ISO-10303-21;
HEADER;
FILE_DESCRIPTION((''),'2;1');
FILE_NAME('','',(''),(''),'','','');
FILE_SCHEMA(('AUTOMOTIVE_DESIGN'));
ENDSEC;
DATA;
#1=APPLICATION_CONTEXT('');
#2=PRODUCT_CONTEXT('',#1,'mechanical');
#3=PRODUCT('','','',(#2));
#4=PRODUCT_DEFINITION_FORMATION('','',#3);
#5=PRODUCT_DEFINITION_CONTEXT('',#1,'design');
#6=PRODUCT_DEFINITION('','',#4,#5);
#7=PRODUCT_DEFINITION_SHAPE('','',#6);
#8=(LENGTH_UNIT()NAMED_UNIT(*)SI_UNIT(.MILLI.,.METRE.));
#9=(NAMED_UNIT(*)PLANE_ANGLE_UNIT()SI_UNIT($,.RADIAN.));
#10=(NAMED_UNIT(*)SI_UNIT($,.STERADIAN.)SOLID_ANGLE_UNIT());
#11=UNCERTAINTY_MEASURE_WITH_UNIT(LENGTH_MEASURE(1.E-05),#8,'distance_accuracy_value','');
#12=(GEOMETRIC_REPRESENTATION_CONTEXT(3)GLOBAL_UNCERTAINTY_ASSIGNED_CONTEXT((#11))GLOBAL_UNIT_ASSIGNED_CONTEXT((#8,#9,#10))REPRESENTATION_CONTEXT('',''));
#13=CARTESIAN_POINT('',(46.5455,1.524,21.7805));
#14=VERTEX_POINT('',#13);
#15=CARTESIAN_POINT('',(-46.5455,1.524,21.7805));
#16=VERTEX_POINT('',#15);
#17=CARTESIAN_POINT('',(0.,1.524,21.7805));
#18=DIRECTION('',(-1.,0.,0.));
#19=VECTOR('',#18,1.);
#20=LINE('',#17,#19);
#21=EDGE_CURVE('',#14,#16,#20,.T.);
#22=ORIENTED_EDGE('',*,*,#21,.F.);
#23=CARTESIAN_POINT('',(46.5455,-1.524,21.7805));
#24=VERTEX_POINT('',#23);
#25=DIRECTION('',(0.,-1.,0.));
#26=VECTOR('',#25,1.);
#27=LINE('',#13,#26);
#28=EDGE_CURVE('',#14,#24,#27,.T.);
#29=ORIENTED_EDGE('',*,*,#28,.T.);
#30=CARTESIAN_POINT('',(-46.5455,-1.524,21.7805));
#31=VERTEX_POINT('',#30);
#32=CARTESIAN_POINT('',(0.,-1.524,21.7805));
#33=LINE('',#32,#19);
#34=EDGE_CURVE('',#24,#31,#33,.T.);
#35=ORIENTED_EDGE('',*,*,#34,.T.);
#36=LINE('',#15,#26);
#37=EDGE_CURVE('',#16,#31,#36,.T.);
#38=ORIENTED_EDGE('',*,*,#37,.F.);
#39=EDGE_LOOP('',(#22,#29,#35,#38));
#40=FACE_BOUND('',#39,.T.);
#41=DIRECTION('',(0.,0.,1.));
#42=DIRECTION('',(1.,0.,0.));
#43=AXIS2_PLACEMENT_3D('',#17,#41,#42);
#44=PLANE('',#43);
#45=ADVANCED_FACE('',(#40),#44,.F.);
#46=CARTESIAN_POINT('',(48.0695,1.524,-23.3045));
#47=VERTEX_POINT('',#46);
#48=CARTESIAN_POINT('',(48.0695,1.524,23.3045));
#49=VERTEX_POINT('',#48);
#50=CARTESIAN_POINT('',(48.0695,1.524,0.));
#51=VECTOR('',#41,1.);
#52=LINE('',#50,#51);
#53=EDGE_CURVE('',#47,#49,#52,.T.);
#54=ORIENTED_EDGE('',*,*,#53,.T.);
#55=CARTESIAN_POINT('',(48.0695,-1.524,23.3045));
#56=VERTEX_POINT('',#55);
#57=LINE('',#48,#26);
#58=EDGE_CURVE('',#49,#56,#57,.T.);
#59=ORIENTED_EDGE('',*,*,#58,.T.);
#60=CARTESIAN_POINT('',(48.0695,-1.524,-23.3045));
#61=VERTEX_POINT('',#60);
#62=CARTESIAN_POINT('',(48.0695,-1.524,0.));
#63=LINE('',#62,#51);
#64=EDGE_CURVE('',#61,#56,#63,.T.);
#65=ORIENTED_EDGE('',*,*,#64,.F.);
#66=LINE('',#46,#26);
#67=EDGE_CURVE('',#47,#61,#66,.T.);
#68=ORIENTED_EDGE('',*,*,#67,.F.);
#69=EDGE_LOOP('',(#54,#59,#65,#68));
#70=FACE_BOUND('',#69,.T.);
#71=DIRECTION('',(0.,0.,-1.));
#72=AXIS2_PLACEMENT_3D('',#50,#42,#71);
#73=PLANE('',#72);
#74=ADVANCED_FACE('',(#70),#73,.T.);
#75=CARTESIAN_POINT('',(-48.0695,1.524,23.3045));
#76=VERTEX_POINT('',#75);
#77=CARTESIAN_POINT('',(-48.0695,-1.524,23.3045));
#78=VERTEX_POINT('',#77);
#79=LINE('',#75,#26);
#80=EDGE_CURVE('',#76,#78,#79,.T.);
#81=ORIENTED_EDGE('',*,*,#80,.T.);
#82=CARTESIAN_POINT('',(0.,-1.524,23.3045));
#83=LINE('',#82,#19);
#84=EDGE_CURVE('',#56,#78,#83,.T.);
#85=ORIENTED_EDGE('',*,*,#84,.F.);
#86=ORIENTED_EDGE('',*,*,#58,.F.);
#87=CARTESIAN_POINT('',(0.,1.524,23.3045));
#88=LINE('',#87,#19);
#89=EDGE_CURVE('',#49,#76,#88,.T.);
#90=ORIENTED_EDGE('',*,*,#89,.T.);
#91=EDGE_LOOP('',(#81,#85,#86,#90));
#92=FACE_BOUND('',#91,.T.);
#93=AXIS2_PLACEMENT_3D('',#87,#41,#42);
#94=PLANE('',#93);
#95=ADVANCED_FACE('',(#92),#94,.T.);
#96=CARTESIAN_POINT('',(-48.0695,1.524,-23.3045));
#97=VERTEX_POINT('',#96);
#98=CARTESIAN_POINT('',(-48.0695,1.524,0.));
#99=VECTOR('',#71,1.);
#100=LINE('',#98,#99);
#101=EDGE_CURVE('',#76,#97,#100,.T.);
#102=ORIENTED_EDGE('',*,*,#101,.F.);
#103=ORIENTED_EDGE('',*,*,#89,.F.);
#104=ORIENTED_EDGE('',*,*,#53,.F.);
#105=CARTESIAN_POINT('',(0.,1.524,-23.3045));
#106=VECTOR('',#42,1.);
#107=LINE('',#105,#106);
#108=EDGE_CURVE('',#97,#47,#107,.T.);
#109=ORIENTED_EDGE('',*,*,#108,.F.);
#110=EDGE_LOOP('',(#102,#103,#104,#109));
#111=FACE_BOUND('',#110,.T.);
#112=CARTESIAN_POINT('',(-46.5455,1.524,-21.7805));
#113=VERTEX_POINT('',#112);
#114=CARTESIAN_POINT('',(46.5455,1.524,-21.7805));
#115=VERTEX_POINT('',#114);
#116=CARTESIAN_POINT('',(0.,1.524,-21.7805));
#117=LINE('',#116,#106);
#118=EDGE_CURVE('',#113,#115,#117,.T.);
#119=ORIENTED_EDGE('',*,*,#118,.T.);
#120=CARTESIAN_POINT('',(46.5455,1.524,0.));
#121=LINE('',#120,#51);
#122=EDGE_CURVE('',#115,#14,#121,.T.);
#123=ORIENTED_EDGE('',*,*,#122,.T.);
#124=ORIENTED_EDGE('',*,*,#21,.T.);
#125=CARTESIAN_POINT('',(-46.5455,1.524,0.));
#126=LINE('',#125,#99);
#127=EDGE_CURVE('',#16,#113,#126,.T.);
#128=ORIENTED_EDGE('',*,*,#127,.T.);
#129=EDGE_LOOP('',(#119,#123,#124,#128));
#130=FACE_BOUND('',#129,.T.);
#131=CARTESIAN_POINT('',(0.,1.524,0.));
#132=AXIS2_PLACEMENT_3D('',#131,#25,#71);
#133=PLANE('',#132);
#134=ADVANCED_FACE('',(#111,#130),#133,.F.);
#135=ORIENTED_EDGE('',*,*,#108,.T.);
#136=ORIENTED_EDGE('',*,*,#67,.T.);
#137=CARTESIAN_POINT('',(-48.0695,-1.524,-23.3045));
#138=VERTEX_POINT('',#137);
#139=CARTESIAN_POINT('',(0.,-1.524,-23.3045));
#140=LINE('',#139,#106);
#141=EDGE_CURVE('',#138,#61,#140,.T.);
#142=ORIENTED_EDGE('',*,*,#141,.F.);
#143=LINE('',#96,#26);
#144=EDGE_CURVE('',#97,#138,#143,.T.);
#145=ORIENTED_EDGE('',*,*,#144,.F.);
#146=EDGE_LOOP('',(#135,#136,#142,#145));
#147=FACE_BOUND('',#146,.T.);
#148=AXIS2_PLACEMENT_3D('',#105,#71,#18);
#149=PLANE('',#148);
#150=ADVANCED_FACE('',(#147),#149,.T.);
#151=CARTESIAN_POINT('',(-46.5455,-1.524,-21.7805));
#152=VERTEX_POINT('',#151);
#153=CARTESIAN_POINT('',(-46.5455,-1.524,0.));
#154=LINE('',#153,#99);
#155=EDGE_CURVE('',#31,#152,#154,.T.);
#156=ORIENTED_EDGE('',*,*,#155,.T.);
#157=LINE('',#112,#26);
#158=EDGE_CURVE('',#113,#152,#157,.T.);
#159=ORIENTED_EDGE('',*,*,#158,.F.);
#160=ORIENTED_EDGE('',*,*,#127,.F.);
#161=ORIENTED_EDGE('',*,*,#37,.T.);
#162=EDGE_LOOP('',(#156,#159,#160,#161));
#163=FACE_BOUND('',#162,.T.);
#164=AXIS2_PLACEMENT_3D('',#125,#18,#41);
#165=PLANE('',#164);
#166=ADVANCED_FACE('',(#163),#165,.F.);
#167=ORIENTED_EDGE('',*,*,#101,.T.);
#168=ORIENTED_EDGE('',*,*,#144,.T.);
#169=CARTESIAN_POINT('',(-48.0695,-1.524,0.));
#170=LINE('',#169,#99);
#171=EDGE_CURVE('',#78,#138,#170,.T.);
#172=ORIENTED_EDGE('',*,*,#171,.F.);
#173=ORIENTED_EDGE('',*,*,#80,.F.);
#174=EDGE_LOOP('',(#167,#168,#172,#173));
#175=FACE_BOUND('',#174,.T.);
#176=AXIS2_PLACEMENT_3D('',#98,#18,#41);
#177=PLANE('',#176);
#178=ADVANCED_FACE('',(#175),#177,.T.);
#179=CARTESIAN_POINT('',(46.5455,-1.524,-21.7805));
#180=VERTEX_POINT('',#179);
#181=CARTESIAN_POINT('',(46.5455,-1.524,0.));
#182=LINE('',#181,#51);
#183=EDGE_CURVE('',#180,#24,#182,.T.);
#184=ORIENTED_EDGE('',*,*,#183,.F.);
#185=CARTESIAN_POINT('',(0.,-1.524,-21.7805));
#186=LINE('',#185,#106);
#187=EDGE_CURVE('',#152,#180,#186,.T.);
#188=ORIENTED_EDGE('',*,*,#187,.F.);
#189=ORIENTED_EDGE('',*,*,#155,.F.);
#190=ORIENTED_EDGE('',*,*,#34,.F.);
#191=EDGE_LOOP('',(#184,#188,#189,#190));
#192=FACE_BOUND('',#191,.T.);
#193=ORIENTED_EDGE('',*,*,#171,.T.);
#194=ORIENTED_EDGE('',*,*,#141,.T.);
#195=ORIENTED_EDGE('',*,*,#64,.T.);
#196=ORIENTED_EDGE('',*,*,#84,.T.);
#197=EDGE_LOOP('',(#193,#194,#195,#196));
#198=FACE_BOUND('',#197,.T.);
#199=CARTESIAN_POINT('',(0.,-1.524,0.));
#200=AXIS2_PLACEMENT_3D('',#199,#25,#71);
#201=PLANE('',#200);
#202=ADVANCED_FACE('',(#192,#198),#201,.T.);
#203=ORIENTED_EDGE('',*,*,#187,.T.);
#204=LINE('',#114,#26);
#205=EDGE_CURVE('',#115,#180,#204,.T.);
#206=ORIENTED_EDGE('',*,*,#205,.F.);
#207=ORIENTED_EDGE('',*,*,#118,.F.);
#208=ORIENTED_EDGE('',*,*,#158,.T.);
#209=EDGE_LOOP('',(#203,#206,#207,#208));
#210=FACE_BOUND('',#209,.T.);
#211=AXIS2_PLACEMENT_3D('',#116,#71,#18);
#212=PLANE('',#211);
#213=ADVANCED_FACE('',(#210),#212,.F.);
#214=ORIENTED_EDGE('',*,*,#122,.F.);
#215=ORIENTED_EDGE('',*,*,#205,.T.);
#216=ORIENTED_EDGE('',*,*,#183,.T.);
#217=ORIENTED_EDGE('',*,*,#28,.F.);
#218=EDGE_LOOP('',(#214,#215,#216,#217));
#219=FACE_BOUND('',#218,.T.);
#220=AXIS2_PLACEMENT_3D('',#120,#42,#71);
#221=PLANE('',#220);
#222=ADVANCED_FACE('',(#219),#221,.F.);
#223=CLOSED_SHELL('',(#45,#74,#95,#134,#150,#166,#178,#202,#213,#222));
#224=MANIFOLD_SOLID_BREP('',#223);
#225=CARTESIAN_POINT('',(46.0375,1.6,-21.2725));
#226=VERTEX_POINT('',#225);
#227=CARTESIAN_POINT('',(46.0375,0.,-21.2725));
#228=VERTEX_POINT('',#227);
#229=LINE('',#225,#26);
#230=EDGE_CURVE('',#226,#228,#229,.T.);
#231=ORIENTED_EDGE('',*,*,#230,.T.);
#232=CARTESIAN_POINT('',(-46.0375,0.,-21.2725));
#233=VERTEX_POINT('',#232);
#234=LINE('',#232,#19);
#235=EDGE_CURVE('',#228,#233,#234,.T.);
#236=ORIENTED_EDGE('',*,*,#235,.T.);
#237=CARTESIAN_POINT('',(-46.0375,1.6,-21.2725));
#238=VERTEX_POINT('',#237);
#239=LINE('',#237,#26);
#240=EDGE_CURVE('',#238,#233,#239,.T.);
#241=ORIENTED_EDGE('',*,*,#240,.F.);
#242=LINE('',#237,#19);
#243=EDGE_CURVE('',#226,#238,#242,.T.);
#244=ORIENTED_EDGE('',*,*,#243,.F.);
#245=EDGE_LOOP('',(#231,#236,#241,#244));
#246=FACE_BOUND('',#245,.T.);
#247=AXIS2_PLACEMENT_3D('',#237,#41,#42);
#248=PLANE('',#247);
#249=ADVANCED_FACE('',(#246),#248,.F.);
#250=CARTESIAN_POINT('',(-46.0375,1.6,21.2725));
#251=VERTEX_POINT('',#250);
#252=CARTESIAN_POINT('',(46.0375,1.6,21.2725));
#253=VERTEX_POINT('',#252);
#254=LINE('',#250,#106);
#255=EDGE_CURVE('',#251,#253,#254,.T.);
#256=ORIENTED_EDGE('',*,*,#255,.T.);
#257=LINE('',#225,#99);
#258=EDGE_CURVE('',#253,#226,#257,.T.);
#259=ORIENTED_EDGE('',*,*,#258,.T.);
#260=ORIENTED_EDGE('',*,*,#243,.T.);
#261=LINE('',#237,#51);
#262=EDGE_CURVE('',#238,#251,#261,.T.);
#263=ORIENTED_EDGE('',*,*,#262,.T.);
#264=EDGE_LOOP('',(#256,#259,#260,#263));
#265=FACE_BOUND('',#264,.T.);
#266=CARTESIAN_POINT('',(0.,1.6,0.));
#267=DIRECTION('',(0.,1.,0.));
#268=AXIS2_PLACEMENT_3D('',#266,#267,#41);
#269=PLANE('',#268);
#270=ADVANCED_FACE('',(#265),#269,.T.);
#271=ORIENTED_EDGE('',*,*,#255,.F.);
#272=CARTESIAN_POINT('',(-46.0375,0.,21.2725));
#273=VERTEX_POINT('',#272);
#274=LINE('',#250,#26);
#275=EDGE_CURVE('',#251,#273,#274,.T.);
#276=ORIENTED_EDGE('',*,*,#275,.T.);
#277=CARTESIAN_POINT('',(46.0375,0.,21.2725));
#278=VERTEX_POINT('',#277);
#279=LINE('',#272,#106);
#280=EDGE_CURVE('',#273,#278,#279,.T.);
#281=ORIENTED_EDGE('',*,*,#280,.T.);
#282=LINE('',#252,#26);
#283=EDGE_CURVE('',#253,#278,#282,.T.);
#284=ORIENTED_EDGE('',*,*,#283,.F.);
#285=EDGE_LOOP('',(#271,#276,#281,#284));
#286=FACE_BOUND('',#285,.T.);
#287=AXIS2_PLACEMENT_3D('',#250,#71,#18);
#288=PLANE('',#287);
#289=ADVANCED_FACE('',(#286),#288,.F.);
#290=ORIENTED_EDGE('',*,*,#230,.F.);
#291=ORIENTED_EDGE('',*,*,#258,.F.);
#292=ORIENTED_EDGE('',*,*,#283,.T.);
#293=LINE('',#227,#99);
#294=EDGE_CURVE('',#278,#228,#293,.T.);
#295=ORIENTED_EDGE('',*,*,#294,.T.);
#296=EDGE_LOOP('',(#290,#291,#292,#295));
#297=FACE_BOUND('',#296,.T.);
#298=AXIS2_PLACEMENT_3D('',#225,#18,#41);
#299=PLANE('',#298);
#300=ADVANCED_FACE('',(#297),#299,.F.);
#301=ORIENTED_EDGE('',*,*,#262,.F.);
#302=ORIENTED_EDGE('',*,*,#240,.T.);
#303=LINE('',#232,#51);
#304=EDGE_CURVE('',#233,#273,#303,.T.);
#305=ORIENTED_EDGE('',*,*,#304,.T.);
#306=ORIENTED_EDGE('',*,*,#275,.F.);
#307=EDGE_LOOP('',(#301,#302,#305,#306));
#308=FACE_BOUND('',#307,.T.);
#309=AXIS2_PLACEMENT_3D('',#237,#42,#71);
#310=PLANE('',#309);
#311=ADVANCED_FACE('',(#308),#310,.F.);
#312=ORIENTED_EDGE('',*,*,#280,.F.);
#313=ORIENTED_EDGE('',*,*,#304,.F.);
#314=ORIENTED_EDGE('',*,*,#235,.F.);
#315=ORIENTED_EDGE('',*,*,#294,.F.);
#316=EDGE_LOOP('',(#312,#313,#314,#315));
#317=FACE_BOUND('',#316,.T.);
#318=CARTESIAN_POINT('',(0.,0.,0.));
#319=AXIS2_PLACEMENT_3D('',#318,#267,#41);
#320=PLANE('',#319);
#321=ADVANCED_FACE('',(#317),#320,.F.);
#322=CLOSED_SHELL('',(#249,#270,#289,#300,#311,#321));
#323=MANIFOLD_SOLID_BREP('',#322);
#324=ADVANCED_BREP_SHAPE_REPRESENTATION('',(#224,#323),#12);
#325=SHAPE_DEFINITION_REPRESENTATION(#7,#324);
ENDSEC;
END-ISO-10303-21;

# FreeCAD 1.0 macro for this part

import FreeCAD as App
import Part
import Sketcher

V = App.Vector
Q = App.Units.Quantity


def add_polygon(sketch, points):
    """Adds a closed chain of lines whose ends are joined by coincident constraints."""
    first, n = sketch.GeometryCount, len(points)
    for a, b in zip(points, points[1:] + points[:1]):
        sketch.addGeometry(Part.LineSegment(App.Vector(*a, 0), App.Vector(*b, 0)), False)
    for i in range(n):
        sketch.addConstraint(Sketcher.Constraint("Coincident", first + i, 2, first + (i + 1) % n, 1))

doc = App.newDocument("Part")
body = doc.addObject("PartDesign::Body", "Body")

sketch1 = body.newObject("Sketcher::SketchObject", "Sketch")
sketch1.AttachmentSupport = (doc.getObject("XZ_Plane"), [""])
sketch1.MapMode = "FlatFace"
add_polygon(sketch1, [(-46.0375, -21.2725), (-46.0375, 21.2725), (46.0375, 21.2725), (46.0375, -21.2725)])
sketch1.addConstraint([
    Sketcher.Constraint("Vertical", 0),
    Sketcher.Constraint("Horizontal", 1),
    Sketcher.Constraint("Vertical", 2),
    Sketcher.Constraint("Horizontal", 3),
    Sketcher.Constraint("Symmetric", 0, 2, 2, 2, -1, 1),
    Sketcher.Constraint("DistanceX", 1, 1, 1, 2, Q("3.625 in")),
    Sketcher.Constraint("DistanceY", 0, 1, 0, 2, Q("1.675 in")),
])
pad1 = body.newObject("PartDesign::Pad", "Pad")
pad1.Profile = sketch1
pad1.Length = 1.6
pad1.Reversed = True
body2 = doc.addObject("PartDesign::Body", "Body001")

sketch2 = body2.newObject("Sketcher::SketchObject", "Sketch001")
sketch2.AttachmentSupport = (doc.getObject("XZ_Plane001"), [""])
sketch2.MapMode = "FlatFace"
add_polygon(sketch2, [(-48.0695, 23.3045), (-48.0695, -23.3045), (48.0695, -23.3045), (48.0695, 23.3045)])
add_polygon(sketch2, [(46.5455, -21.7805), (-46.5455, -21.7805), (-46.5455, 21.7805), (46.5455, 21.7805)])
sketch2.addConstraint([
    Sketcher.Constraint("Vertical", 0),
    Sketcher.Constraint("Horizontal", 1),
    Sketcher.Constraint("Vertical", 2),
    Sketcher.Constraint("Horizontal", 3),
    Sketcher.Constraint("Horizontal", 4),
    Sketcher.Constraint("Vertical", 5),
    Sketcher.Constraint("Horizontal", 6),
    Sketcher.Constraint("Vertical", 7),
    Sketcher.Constraint("Symmetric", 0, 2, 2, 2, -1, 1),
    Sketcher.Constraint("Symmetric", 4, 2, 6, 2, -1, 1),
    Sketcher.Constraint("DistanceX", 1, 1, 1, 2, Q("3.785 in")),
    Sketcher.Constraint("DistanceX", 4, 2, 4, 1, Q("3.665 in")),
    Sketcher.Constraint("DistanceY", 0, 2, 0, 1, Q("1.835 in")),
    Sketcher.Constraint("DistanceY", 5, 1, 5, 2, Q("1.715 in")),
])
pad2 = body2.newObject("PartDesign::Pad", "Pad001")
pad2.Profile = sketch2
pad2.Type = "TwoLengths"
pad2.Length = Q("0.06 in")
pad2.Length2 = Q("0.06 in")

doc.recompute()
